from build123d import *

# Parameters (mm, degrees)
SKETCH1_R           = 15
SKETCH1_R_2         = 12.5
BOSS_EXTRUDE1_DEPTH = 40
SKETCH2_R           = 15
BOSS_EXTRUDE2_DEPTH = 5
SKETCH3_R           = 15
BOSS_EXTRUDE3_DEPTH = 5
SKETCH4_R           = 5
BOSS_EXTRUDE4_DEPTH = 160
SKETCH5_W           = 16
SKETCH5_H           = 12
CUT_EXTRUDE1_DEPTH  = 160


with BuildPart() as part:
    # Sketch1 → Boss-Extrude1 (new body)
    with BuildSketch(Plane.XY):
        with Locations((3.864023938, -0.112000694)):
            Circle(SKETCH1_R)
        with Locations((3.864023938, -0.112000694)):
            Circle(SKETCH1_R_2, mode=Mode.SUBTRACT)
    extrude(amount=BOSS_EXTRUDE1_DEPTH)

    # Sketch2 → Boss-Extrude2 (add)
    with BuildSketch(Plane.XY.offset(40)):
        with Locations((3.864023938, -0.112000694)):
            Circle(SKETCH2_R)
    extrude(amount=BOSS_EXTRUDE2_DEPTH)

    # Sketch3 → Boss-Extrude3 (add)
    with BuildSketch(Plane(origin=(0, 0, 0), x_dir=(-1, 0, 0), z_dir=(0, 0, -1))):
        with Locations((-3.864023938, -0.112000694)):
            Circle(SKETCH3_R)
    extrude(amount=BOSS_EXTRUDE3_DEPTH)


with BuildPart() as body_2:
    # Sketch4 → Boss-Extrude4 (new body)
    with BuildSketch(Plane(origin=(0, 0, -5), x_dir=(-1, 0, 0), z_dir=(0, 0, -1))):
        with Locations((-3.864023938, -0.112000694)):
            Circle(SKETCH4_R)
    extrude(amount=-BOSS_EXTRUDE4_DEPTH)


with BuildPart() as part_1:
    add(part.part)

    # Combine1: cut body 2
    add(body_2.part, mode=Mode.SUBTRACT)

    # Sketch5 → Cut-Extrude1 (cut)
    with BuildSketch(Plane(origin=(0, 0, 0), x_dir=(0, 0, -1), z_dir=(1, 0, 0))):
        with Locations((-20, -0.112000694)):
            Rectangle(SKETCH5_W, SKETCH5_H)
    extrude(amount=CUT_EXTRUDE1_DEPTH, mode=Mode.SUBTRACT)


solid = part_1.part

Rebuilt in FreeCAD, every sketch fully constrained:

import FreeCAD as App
import Part
import Sketcher
from FreeCAD import Vector

doc = App.newDocument("Part")
body = doc.addObject("PartDesign::Body", "Body")

sketch1 = doc.addObject("Sketcher::SketchObject", "Sketch")
body.addObject(sketch1)
sketch1.AttachmentSupport = (doc.XY_Plane, [""])
sketch1.MapMode = "FlatFace"
sketch1.addGeometry(Part.Circle(Vector(4, 0, 0), Vector(0, 0, 1), 15), False)
sketch1.addGeometry(Part.Circle(Vector(4, 0, 0), Vector(0, 0, 1), 12), False)
sketch1.addConstraint(Sketcher.Constraint("Coincident", 1, 3, 0, 3))
sketch1.addConstraint(Sketcher.Constraint("Diameter", 0, 30.0))
sketch1.addConstraint(Sketcher.Constraint("Diameter", 1, 25.0))
sketch1.addConstraint(Sketcher.Constraint("DistanceY", 0, 3, -1, 1, 0.112001))
sketch1.addConstraint(Sketcher.Constraint("DistanceX", -1, 1, 0, 3, 3.864024))
pad1 = doc.addObject("PartDesign::Pad", "Pad")
body.addObject(pad1)
pad1.Profile = sketch1
pad1.Length = 40

sketch2 = doc.addObject("Sketcher::SketchObject", "Sketch001")
body.addObject(sketch2)
sketch2.AttachmentSupport = (doc.XY_Plane, [""])
sketch2.MapMode = "FlatFace"
sketch2.AttachmentOffset = App.Placement(Vector(0, 0, 40), App.Rotation())
sketch2.addGeometry(Part.Circle(Vector(4, 0, 0), Vector(0, 0, 1), 15), False)
sketch2.addConstraint(Sketcher.Constraint("Diameter", 0, 30.0))
sketch2.addConstraint(Sketcher.Constraint("DistanceY", 0, 3, -1, 1, 0.112001))
sketch2.addConstraint(Sketcher.Constraint("DistanceX", -1, 1, 0, 3, 3.864024))
pad2 = doc.addObject("PartDesign::Pad", "Pad001")
body.addObject(pad2)
pad2.Profile = sketch2
pad2.Length = 5

sketch3 = doc.addObject("Sketcher::SketchObject", "Sketch002")
body.addObject(sketch3)
sketch3.AttachmentSupport = (doc.XY_Plane, [""])
sketch3.MapMode = "FlatFace"
sketch3.addGeometry(Part.Circle(Vector(4, 0, 0), Vector(0, 0, 1), 15), False)
sketch3.addConstraint(Sketcher.Constraint("Diameter", 0, 30.0))
sketch3.addConstraint(Sketcher.Constraint("DistanceY", 0, 3, -1, 1, 0.112001))
sketch3.addConstraint(Sketcher.Constraint("DistanceX", -1, 1, 0, 3, 3.864024))
pad3 = doc.addObject("PartDesign::Pad", "Pad002")
body.addObject(pad3)
pad3.Profile = sketch3
pad3.Length = 5
pad3.Reversed = True
body2 = doc.addObject("PartDesign::Body", "Body001")

sketch4 = doc.addObject("Sketcher::SketchObject", "Sketch003")
body2.addObject(sketch4)
sketch4.AttachmentSupport = (doc.getObject("XY_Plane001"), [""])
sketch4.MapMode = "FlatFace"
sketch4.AttachmentOffset = App.Placement(Vector(0, 0, -5), App.Rotation())
sketch4.addGeometry(Part.Circle(Vector(4, 0, 0), Vector(0, 0, 1), 5), False)
sketch4.addConstraint(Sketcher.Constraint("Diameter", 0, 10.0))
sketch4.addConstraint(Sketcher.Constraint("DistanceY", 0, 3, -1, 1, 0.112001))
sketch4.addConstraint(Sketcher.Constraint("DistanceX", -1, 1, 0, 3, 3.864024))
pad4 = doc.addObject("PartDesign::Pad", "Pad003")
body2.addObject(pad4)
pad4.Profile = sketch4
pad4.Length = 160
doc.recompute()

boolean = doc.addObject("PartDesign::Boolean", "Boolean")
body.addObject(boolean)
boolean.Type = "Cut"
boolean.addObjects([body2])

sketch5 = doc.addObject("Sketcher::SketchObject", "Sketch004")
body.addObject(sketch5)
sketch5.AttachmentSupport = (doc.YZ_Plane, [""])
sketch5.MapMode = "FlatFace"
sketch5.addGeometry(Part.LineSegment(Vector(6, 28, 0), Vector(-6, 28, 0)), False)
sketch5.addGeometry(Part.LineSegment(Vector(-6, 28, 0), Vector(-6, 12, 0)), False)
sketch5.addGeometry(Part.LineSegment(Vector(-6, 12, 0), Vector(6, 12, 0)), False)
sketch5.addGeometry(Part.LineSegment(Vector(6, 12, 0), Vector(6, 28, 0)), False)
sketch5.addConstraint(Sketcher.Constraint("Coincident", 0, 2, 1, 1))
sketch5.addConstraint(Sketcher.Constraint("Coincident", 1, 2, 2, 1))
sketch5.addConstraint(Sketcher.Constraint("Coincident", 2, 2, 3, 1))
sketch5.addConstraint(Sketcher.Constraint("Coincident", 3, 2, 0, 1))
sketch5.addConstraint(Sketcher.Constraint("Horizontal", 0))
sketch5.addConstraint(Sketcher.Constraint("Vertical", 1))
sketch5.addConstraint(Sketcher.Constraint("Horizontal", 2))
sketch5.addConstraint(Sketcher.Constraint("Vertical", 3))
sketch5.addConstraint(Sketcher.Constraint("DistanceX", 0, 2, 0, 1, 12.0))
sketch5.addConstraint(Sketcher.Constraint("DistanceY", 1, 2, 1, 1, 16.0))
sketch5.addConstraint(Sketcher.Constraint("DistanceY", -1, 1, 0, 2, 28.0))
sketch5.addConstraint(Sketcher.Constraint("DistanceX", 0, 2, -1, 1, 6.112001))
pocket1 = doc.addObject("PartDesign::Pocket", "Pocket")
body.addObject(pocket1)
pocket1.Profile = sketch5
pocket1.Length = 160
pocket1.Reversed = True

doc.recompute()
